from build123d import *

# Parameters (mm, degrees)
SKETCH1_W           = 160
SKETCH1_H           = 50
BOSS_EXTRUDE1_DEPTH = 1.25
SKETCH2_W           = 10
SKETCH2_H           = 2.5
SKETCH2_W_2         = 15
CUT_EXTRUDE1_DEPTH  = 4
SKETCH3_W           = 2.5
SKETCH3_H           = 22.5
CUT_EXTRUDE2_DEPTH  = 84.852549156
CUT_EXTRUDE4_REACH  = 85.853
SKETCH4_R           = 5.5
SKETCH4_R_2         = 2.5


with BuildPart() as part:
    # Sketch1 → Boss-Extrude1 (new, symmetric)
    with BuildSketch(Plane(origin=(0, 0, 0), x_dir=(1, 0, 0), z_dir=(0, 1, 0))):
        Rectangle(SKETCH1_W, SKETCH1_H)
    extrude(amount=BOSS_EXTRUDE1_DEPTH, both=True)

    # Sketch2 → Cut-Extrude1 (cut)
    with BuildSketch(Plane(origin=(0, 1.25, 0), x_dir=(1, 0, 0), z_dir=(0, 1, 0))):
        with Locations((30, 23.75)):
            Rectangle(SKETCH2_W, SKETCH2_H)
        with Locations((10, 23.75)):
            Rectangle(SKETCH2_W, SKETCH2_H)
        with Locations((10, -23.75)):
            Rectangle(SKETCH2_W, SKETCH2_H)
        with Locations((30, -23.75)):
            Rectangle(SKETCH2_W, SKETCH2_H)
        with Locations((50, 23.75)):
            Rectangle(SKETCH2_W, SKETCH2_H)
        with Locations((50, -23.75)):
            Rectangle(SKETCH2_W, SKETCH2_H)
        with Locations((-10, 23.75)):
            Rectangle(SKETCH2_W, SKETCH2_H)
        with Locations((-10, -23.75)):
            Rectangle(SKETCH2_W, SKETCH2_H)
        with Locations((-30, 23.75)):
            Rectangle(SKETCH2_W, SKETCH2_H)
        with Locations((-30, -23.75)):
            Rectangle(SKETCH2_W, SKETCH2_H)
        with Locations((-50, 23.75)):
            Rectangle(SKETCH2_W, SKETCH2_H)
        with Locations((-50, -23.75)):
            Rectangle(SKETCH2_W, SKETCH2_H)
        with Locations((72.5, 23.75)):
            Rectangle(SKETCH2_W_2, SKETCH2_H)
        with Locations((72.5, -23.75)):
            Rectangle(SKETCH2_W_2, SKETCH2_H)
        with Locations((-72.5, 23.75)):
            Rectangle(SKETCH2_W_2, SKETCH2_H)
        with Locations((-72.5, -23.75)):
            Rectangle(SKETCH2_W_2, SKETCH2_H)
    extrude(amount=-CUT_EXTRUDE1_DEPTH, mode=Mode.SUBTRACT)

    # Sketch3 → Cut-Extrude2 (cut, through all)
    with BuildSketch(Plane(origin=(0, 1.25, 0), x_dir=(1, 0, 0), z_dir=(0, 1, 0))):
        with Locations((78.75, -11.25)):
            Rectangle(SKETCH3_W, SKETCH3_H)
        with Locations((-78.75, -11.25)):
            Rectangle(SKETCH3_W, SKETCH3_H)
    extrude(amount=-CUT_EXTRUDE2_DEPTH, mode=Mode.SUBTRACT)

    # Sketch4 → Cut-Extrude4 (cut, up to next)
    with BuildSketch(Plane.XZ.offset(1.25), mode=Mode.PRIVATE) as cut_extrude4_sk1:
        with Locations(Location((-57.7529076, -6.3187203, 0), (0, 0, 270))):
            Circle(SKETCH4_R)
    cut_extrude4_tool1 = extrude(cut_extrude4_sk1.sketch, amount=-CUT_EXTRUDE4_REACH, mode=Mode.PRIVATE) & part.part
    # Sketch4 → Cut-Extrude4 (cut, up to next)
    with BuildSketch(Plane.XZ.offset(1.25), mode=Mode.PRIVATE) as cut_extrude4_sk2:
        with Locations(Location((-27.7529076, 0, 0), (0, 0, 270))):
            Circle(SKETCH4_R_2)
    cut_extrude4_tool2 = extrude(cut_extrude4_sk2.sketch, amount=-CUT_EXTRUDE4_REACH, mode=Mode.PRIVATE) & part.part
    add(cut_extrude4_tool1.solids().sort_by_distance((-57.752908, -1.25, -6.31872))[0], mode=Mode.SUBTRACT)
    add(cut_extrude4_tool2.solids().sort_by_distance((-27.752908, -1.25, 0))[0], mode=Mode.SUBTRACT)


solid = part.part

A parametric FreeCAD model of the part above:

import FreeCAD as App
import Part
import Sketcher


def add_polygon(sketch, points):
    """Adds a closed chain of lines whose ends are joined by coincident constraints."""
    first, n = sketch.GeometryCount, len(points)
    for a, b in zip(points, points[1:] + points[:1]):
        sketch.addGeometry(Part.LineSegment(App.Vector(*a, 0), App.Vector(*b, 0)), False)
    for i in range(n):
        sketch.addConstraint(Sketcher.Constraint("Coincident", first + i, 2, first + (i + 1) % n, 1))

doc = App.newDocument("Part")
body = doc.addObject("PartDesign::Body", "Body")

# Sketch on XZ plane
sketch1 = body.newObject("Sketcher::SketchObject", "Sketch")
sketch1.AttachmentSupport = (doc.getObject("XZ_Plane"), [""])
sketch1.MapMode = "FlatFace"
add_polygon(sketch1, [(-80, -25), (-80, 25), (80, 25), (80, -25)])  # lines 0-3
sketch1.addConstraint(Sketcher.Constraint("Vertical", 0))
sketch1.addConstraint(Sketcher.Constraint("Horizontal", 1))
sketch1.addConstraint(Sketcher.Constraint("Vertical", 2))
sketch1.addConstraint(Sketcher.Constraint("Horizontal", 3))
sketch1.addConstraint(Sketcher.Constraint("Symmetric", 0, 2, 2, 2, -1, 1))
sketch1.addConstraint(Sketcher.Constraint("DistanceX", 1, 1, 1, 2, 160.0))
sketch1.addConstraint(Sketcher.Constraint("DistanceY", 0, 1, 0, 2, 50.0))
pad1 = body.newObject("PartDesign::Pad", "Pad")
pad1.Profile = sketch1
pad1.Length = 2.5
pad1.Midplane = True

# Sketch on XZ plane
sketch2 = body.newObject("Sketcher::SketchObject", "Sketch001")
sketch2.AttachmentSupport = (doc.getObject("XZ_Plane"), [""])
sketch2.MapMode = "FlatFace"
sketch2.AttachmentOffset = App.Placement(App.Vector(0, 0, -1.25), App.Rotation())
add_polygon(sketch2, [(25, -25), (25, -22.5), (35, -22.5), (35, -25)])  # lines 0-3
add_polygon(sketch2, [(5, -25), (5, -22.5), (15, -22.5), (15, -25)])  # lines 4-7
add_polygon(sketch2, [(5, 22.5), (5, 25), (15, 25), (15, 22.5)])  # lines 8-11
add_polygon(sketch2, [(25, 22.5), (25, 25), (35, 25), (35, 22.5)])  # lines 12-15
add_polygon(sketch2, [(45, -25), (45, -22.5), (55, -22.5), (55, -25)])  # lines 16-19
add_polygon(sketch2, [(45, 22.5), (45, 25), (55, 25), (55, 22.5)])  # lines 20-23
add_polygon(sketch2, [(-15, -25), (-15, -22.5), (-5, -22.5), (-5, -25)])  # lines 24-27
add_polygon(sketch2, [(-15, 22.5), (-15, 25), (-5, 25), (-5, 22.5)])  # lines 28-31
add_polygon(sketch2, [(-35, -25), (-35, -22.5), (-25, -22.5), (-25, -25)])  # lines 32-35
add_polygon(sketch2, [(-35, 22.5), (-35, 25), (-25, 25), (-25, 22.5)])  # lines 36-39
add_polygon(sketch2, [(-55, -25), (-55, -22.5), (-45, -22.5), (-45, -25)])  # lines 40-43
add_polygon(sketch2, [(-55, 22.5), (-55, 25), (-45, 25), (-45, 22.5)])  # lines 44-47
add_polygon(sketch2, [(65, -25), (65, -22.5), (80, -22.5), (80, -25)])  # lines 48-51
add_polygon(sketch2, [(65, 22.5), (65, 25), (80, 25), (80, 22.5)])  # lines 52-55
add_polygon(sketch2, [(-80, -25), (-80, -22.5), (-65, -22.5), (-65, -25)])  # lines 56-59
add_polygon(sketch2, [(-80, 22.5), (-80, 25), (-65, 25), (-65, 22.5)])  # lines 60-63
sketch2.addConstraint(Sketcher.Constraint("Vertical", 0))
sketch2.addConstraint(Sketcher.Constraint("Horizontal", 1))
sketch2.addConstraint(Sketcher.Constraint("Vertical", 2))
sketch2.addConstraint(Sketcher.Constraint("Horizontal", 3))
sketch2.addConstraint(Sketcher.Constraint("Vertical", 4))
sketch2.addConstraint(Sketcher.Constraint("Horizontal", 5))
sketch2.addConstraint(Sketcher.Constraint("Vertical", 6))
sketch2.addConstraint(Sketcher.Constraint("Horizontal", 7))
sketch2.addConstraint(Sketcher.Constraint("Vertical", 8))
sketch2.addConstraint(Sketcher.Constraint("Horizontal", 9))
sketch2.addConstraint(Sketcher.Constraint("Vertical", 10))
sketch2.addConstraint(Sketcher.Constraint("Horizontal", 11))
sketch2.addConstraint(Sketcher.Constraint("Vertical", 12))
sketch2.addConstraint(Sketcher.Constraint("Horizontal", 13))
sketch2.addConstraint(Sketcher.Constraint("Vertical", 14))
sketch2.addConstraint(Sketcher.Constraint("Horizontal", 15))
sketch2.addConstraint(Sketcher.Constraint("Vertical", 16))
sketch2.addConstraint(Sketcher.Constraint("Horizontal", 17))
sketch2.addConstraint(Sketcher.Constraint("Vertical", 18))
sketch2.addConstraint(Sketcher.Constraint("Horizontal", 19))
sketch2.addConstraint(Sketcher.Constraint("Vertical", 20))
sketch2.addConstraint(Sketcher.Constraint("Horizontal", 21))
sketch2.addConstraint(Sketcher.Constraint("Vertical", 22))
sketch2.addConstraint(Sketcher.Constraint("Horizontal", 23))
sketch2.addConstraint(Sketcher.Constraint("Vertical", 24))
sketch2.addConstraint(Sketcher.Constraint("Horizontal", 25))
sketch2.addConstraint(Sketcher.Constraint("Vertical", 26))
sketch2.addConstraint(Sketcher.Constraint("Horizontal", 27))
sketch2.addConstraint(Sketcher.Constraint("Vertical", 28))
sketch2.addConstraint(Sketcher.Constraint("Horizontal", 29))
sketch2.addConstraint(Sketcher.Constraint("Vertical", 30))
sketch2.addConstraint(Sketcher.Constraint("Horizontal", 31))
sketch2.addConstraint(Sketcher.Constraint("Vertical", 32))
sketch2.addConstraint(Sketcher.Constraint("Horizontal", 33))
sketch2.addConstraint(Sketcher.Constraint("Vertical", 34))
sketch2.addConstraint(Sketcher.Constraint("Horizontal", 35))
sketch2.addConstraint(Sketcher.Constraint("Vertical", 36))
sketch2.addConstraint(Sketcher.Constraint("Horizontal", 37))
sketch2.addConstraint(Sketcher.Constraint("Vertical", 38))
sketch2.addConstraint(Sketcher.Constraint("Horizontal", 39))
sketch2.addConstraint(Sketcher.Constraint("Vertical", 40))
sketch2.addConstraint(Sketcher.Constraint("Horizontal", 41))
sketch2.addConstraint(Sketcher.Constraint("Vertical", 42))
sketch2.addConstraint(Sketcher.Constraint("Horizontal", 43))
sketch2.addConstraint(Sketcher.Constraint("Vertical", 44))
sketch2.addConstraint(Sketcher.Constraint("Horizontal", 45))
sketch2.addConstraint(Sketcher.Constraint("Vertical", 46))
sketch2.addConstraint(Sketcher.Constraint("Horizontal", 47))
sketch2.addConstraint(Sketcher.Constraint("Vertical", 48))
sketch2.addConstraint(Sketcher.Constraint("Horizontal", 49))
sketch2.addConstraint(Sketcher.Constraint("Vertical", 50))
sketch2.addConstraint(Sketcher.Constraint("Horizontal", 51))
sketch2.addConstraint(Sketcher.Constraint("Vertical", 52))
sketch2.addConstraint(Sketcher.Constraint("Horizontal", 53))
sketch2.addConstraint(Sketcher.Constraint("Vertical", 54))
sketch2.addConstraint(Sketcher.Constraint("Horizontal", 55))
sketch2.addConstraint(Sketcher.Constraint("Vertical", 56))
sketch2.addConstraint(Sketcher.Constraint("Horizontal", 57))
sketch2.addConstraint(Sketcher.Constraint("Vertical", 58))
sketch2.addConstraint(Sketcher.Constraint("Horizontal", 59))
sketch2.addConstraint(Sketcher.Constraint("Vertical", 60))
sketch2.addConstraint(Sketcher.Constraint("Horizontal", 61))
sketch2.addConstraint(Sketcher.Constraint("Vertical", 62))
sketch2.addConstraint(Sketcher.Constraint("Horizontal", 63))
sketch2.addConstraint(Sketcher.Constraint("Symmetric", 10, 2, 24, 2, -1, 1))
sketch2.addConstraint(Sketcher.Constraint("Symmetric", 8, 2, 26, 2, -1, 1))
sketch2.addConstraint(Sketcher.Constraint("Symmetric", 6, 2, 28, 2, -1, 1))
sketch2.addConstraint(Sketcher.Constraint("Symmetric", 4, 2, 30, 2, -1, 1))
sketch2.addConstraint(Sketcher.Constraint("Symmetric", 14, 2, 32, 2, -1, 1))
sketch2.addConstraint(Sketcher.Constraint("Symmetric", 12, 2, 34, 2, -1, 1))
sketch2.addConstraint(Sketcher.Constraint("Symmetric", 2, 2, 36, 2, -1, 1))
sketch2.addConstraint(Sketcher.Constraint("Symmetric", 0, 2, 38, 2, -1, 1))
sketch2.addConstraint(Sketcher.Constraint("Symmetric", 22, 2, 40, 2, -1, 1))
sketch2.addConstraint(Sketcher.Constraint("Symmetric", 20, 2, 42, 2, -1, 1))
sketch2.addConstraint(Sketcher.Constraint("Symmetric", 18, 2, 44, 2, -1, 1))
sketch2.addConstraint(Sketcher.Constraint("Symmetric", 16, 2, 46, 2, -1, 1))
sketch2.addConstraint(Sketcher.Constraint("Symmetric", 54, 2, 56, 2, -1, 1))
sketch2.addConstraint(Sketcher.Constraint("Symmetric", 52, 2, 58, 2, -1, 1))
sketch2.addConstraint(Sketcher.Constraint("Symmetric", 50, 2, 60, 2, -1, 1))
sketch2.addConstraint(Sketcher.Constraint("Symmetric", 48, 2, 62, 2, -1, 1))
sketch2.addConstraint(Sketcher.Constraint("Symmetric", 5, 2, 24, 2, -2))
sketch2.addConstraint(Sketcher.Constraint("Symmetric", 7, 2, 26, 2, -2))
sketch2.addConstraint(Sketcher.Constraint("Symmetric", 1, 2, 32, 2, -2))
sketch2.addConstraint(Sketcher.Constraint("Symmetric", 3, 2, 34, 2, -2))
sketch2.addConstraint(Sketcher.Constraint("Symmetric", 17, 2, 40, 2, -2))
sketch2.addConstraint(Sketcher.Constraint("Symmetric", 19, 2, 42, 2, -2))
sketch2.addConstraint(Sketcher.Constraint("Symmetric", 49, 2, 56, 2, -2))
sketch2.addConstraint(Sketcher.Constraint("Symmetric", 51, 2, 58, 2, -2))
sketch2.addConstraint(Sketcher.Constraint("Horizontal", 1, 2, 4, 2))
sketch2.addConstraint(Sketcher.Constraint("Horizontal", 3, 2, 6, 2))
sketch2.addConstraint(Sketcher.Constraint("Horizontal", 5, 2, 16, 2))
sketch2.addConstraint(Sketcher.Constraint("Horizontal", 7, 2, 18, 2))
sketch2.addConstraint(Sketcher.Constraint("Horizontal", 41, 2, 48, 2))
sketch2.addConstraint(Sketcher.Constraint("Horizontal", 43, 2, 50, 2))
sketch2.addConstraint(Sketcher.Constraint("Equal", 3, 5))
sketch2.addConstraint(Sketcher.Constraint("Equal", 15, 17))
sketch2.addConstraint(Sketcher.Constraint("DistanceX", 1, 1, 1, 2, 10.0))
sketch2.addConstraint(Sketcher.Constraint("DistanceX", 49, 1, 49, 2, 15.0))
sketch2.addConstraint(Sketcher.Constraint("DistanceY", 0, 1, 0, 2, 2.5))
sketch2.addConstraint(Sketcher.Constraint("DistanceX", -1, 1, 0, 2, 25.0))
sketch2.addConstraint(Sketcher.Constraint("DistanceY", 2, 2, -1, 1, 25.0))
sketch2.addConstraint(Sketcher.Constraint("DistanceX", -1, 1, 4, 2, 5.0))
sketch2.addConstraint(Sketcher.Constraint("DistanceX", -1, 1, 16, 2, 45.0))
sketch2.addConstraint(Sketcher.Constraint("DistanceX", -1, 1, 48, 2, 65.0))
pocket1 = body.newObject("PartDesign::Pocket", "Pocket")
pocket1.Profile = sketch2
pocket1.Length = 4
pocket1.Reversed = True

# Sketch on XZ plane
sketch3 = body.newObject("Sketcher::SketchObject", "Sketch002")
sketch3.AttachmentSupport = (doc.getObject("XZ_Plane"), [""])
sketch3.MapMode = "FlatFace"
sketch3.AttachmentOffset = App.Placement(App.Vector(0, 0, -1.25), App.Rotation())
add_polygon(sketch3, [(77.5, 0), (77.5, 22.5), (80, 22.5), (80, 0)])  # lines 0-3
add_polygon(sketch3, [(-80, 0), (-80, 22.5), (-77.5, 22.5), (-77.5, 0)])  # lines 4-7
sketch3.addConstraint(Sketcher.Constraint("Vertical", 0))
sketch3.addConstraint(Sketcher.Constraint("Horizontal", 1))
sketch3.addConstraint(Sketcher.Constraint("Vertical", 2))
sketch3.addConstraint(Sketcher.Constraint("Horizontal", 3))
sketch3.addConstraint(Sketcher.Constraint("Vertical", 4))
sketch3.addConstraint(Sketcher.Constraint("Horizontal", 5))
sketch3.addConstraint(Sketcher.Constraint("Vertical", 6))
sketch3.addConstraint(Sketcher.Constraint("Horizontal", 7))
sketch3.addConstraint(Sketcher.Constraint("Symmetric", 3, 2, 6, 2, -1, 1))
sketch3.addConstraint(Sketcher.Constraint("Symmetric", 1, 2, 4, 2, -2))
sketch3.addConstraint(Sketcher.Constraint("PointOnObject", 2, 2, -1))
sketch3.addConstraint(Sketcher.Constraint("DistanceX", 1, 1, 1, 2, 2.5))
sketch3.addConstraint(Sketcher.Constraint("DistanceY", 0, 1, 0, 2, 22.5))
sketch3.addConstraint(Sketcher.Constraint("DistanceX", -1, 1, 1, 2, 80.0))
pocket2 = body.newObject("PartDesign::Pocket", "Pocket001")
pocket2.Profile = sketch3
pocket2.Type = "ThroughAll"
pocket2.Reversed = True

# Sketch on XZ plane
sketch4 = body.newObject("Sketcher::SketchObject", "Sketch003")
sketch4.AttachmentSupport = (doc.getObject("XZ_Plane"), [""])
sketch4.MapMode = "FlatFace"
sketch4.AttachmentOffset = App.Placement(App.Vector(0, 0, 1.25), App.Rotation())
sketch4.addGeometry(Part.Circle(App.Vector(-58, -6, 0), App.Vector(0, 0, 1), 6), False)
sketch4.addConstraint(Sketcher.Constraint("Diameter", 0, 11.0))
sketch4.addConstraint(Sketcher.Constraint("DistanceY", 0, 3, -1, 1, 6.31872))
sketch4.addConstraint(Sketcher.Constraint("DistanceX", 0, 3, -1, 1, 57.752908))
pocket3 = body.newObject("PartDesign::Pocket", "Pocket002")
pocket3.Profile = sketch4
pocket3.Type = "UpToFirst"

# Sketch on XZ plane
sketch5 = body.newObject("Sketcher::SketchObject", "Sketch004")
sketch5.AttachmentSupport = (doc.getObject("XZ_Plane"), [""])
sketch5.MapMode = "FlatFace"
sketch5.AttachmentOffset = App.Placement(App.Vector(0, 0, 1.25), App.Rotation())
sketch5.addGeometry(Part.Circle(App.Vector(-27.8, 0, 0), App.Vector(0, 0, 1), 2.5), False)
sketch5.addConstraint(Sketcher.Constraint("PointOnObject", 0, 3, -1))
sketch5.addConstraint(Sketcher.Constraint("Diameter", 0, 5.0))
sketch5.addConstraint(Sketcher.Constraint("DistanceX", 0, 3, -1, 1, 27.752908))
pocket4 = body.newObject("PartDesign::Pocket", "Pocket003")
pocket4.Profile = sketch5
pocket4.Type = "UpToFirst"

doc.recompute()
